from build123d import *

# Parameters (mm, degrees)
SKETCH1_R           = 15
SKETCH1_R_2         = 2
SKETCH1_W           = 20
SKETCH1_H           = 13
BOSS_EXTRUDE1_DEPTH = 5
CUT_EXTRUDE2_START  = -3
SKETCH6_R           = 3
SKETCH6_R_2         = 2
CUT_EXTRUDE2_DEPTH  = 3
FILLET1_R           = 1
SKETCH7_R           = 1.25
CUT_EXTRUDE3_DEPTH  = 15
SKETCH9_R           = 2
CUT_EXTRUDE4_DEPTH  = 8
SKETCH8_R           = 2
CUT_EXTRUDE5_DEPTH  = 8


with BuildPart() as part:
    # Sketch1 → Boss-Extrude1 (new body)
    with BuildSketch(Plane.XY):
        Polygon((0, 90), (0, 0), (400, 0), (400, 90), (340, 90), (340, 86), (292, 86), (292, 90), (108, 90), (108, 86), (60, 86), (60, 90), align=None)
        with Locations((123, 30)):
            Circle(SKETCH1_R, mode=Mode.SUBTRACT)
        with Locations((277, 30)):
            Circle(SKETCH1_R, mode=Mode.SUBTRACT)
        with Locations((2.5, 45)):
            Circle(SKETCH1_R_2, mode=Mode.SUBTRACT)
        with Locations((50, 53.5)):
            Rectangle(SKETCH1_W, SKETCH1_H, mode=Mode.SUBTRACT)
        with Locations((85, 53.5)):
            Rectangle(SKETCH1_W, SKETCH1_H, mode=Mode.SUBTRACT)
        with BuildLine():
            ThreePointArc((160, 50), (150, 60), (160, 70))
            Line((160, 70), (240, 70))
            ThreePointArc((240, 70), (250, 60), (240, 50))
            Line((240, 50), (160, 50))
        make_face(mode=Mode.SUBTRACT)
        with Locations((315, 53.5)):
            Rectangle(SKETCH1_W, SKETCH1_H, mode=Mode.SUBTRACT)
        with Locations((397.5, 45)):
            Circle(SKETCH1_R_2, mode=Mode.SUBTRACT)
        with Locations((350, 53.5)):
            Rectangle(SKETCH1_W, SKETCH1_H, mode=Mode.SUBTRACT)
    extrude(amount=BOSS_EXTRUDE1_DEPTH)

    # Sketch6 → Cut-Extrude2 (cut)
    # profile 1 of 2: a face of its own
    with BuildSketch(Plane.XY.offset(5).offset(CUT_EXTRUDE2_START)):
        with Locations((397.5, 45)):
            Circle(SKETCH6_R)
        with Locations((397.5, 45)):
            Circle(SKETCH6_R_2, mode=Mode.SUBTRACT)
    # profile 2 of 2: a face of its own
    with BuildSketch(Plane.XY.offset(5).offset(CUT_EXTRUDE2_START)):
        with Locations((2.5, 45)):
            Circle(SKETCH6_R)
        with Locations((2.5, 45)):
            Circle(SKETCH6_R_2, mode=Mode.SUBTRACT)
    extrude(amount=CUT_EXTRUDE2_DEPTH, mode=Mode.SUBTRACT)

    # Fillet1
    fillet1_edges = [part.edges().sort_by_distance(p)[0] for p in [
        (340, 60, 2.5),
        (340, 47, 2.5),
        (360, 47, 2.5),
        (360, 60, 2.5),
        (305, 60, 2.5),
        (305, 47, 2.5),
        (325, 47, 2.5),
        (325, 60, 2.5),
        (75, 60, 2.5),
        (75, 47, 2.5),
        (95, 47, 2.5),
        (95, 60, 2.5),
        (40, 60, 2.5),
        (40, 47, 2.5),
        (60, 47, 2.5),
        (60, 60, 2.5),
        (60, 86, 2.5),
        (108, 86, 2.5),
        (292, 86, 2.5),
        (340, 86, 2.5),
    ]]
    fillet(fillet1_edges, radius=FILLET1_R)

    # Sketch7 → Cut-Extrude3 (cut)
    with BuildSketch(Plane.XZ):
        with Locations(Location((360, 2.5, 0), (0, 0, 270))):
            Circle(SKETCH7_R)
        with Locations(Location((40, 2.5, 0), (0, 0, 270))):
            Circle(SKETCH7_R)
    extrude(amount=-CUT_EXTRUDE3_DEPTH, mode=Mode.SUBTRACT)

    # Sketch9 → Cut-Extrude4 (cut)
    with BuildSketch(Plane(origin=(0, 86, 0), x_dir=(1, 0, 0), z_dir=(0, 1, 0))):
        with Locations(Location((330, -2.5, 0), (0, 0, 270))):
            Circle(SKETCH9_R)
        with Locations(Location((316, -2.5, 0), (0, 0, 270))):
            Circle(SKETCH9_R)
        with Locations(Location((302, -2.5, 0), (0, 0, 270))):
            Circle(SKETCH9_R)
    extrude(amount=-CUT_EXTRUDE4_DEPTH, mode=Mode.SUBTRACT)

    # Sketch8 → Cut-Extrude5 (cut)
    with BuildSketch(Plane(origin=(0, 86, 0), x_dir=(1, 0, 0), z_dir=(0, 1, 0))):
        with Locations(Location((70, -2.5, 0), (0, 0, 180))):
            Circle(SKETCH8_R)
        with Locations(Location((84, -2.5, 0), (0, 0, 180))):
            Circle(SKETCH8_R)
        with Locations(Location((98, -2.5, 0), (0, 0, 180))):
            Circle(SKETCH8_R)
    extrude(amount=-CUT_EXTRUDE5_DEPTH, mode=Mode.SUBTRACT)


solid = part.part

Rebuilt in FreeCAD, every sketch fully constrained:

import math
import FreeCAD as App
import Part
import Sketcher
Q = App.Units.Quantity


def edges_at(feature, points):
    """Names of the edges that pass closest to the given points."""
    edges = feature.Shape.Edges
    near = lambda p: min(range(len(edges)), key=lambda i: edges[i].distToShape(Part.Vertex(*p))[0])
    return sorted({f"Edge{near(p) + 1}" for p in points})

doc = App.newDocument("Part")
body = doc.addObject("PartDesign::Body", "Body")

# Sketch on XY plane
sketch1 = doc.addObject("Sketcher::SketchObject", "Sketch")
body.addObject(sketch1)
sketch1.AttachmentSupport = (doc.XY_Plane, [""])
sketch1.MapMode = "FlatFace"
sketch1.addGeometry([
    Part.LineSegment(App.Vector(0, 90, 0), App.Vector(0, 0, 0)),  # 0
    Part.LineSegment(App.Vector(0, 0, 0), App.Vector(400, 0, 0)),  # 1
    Part.LineSegment(App.Vector(400, 0, 0), App.Vector(400, 90, 0)),  # 2
    Part.LineSegment(App.Vector(400, 90, 0), App.Vector(340, 90, 0)),  # 3
    Part.LineSegment(App.Vector(340, 90, 0), App.Vector(340, 86, 0)),  # 4
    Part.LineSegment(App.Vector(340, 86, 0), App.Vector(292, 86, 0)),  # 5
    Part.LineSegment(App.Vector(292, 86, 0), App.Vector(292, 90, 0)),  # 6
    Part.LineSegment(App.Vector(292, 90, 0), App.Vector(108, 90, 0)),  # 7
    Part.LineSegment(App.Vector(108, 90, 0), App.Vector(108, 86, 0)),  # 8
    Part.LineSegment(App.Vector(108, 86, 0), App.Vector(60, 86, 0)),  # 9
    Part.LineSegment(App.Vector(60, 86, 0), App.Vector(60, 90, 0)),  # 10
    Part.LineSegment(App.Vector(60, 90, 0), App.Vector(0, 90, 0)),  # 11
    Part.Circle(App.Vector(123, 30, 0), App.Vector(0, 0, 1), 15),  # 12
    Part.Circle(App.Vector(277, 30, 0), App.Vector(0, 0, 1), 15),  # 13
    Part.Circle(App.Vector(2.5, 45, 0), App.Vector(0, 0, 1), 2),  # 14
    Part.LineSegment(App.Vector(60, 47, 0), App.Vector(40, 47, 0)),  # 15
    Part.LineSegment(App.Vector(40, 47, 0), App.Vector(40, 60, 0)),  # 16
    Part.LineSegment(App.Vector(40, 60, 0), App.Vector(60, 60, 0)),  # 17
    Part.LineSegment(App.Vector(60, 60, 0), App.Vector(60, 47, 0)),  # 18
    Part.LineSegment(App.Vector(95, 47, 0), App.Vector(75, 47, 0)),  # 19
    Part.LineSegment(App.Vector(75, 47, 0), App.Vector(75, 60, 0)),  # 20
    Part.LineSegment(App.Vector(75, 60, 0), App.Vector(95, 60, 0)),  # 21
    Part.LineSegment(App.Vector(95, 60, 0), App.Vector(95, 47, 0)),  # 22
    Part.Circle(App.Vector(397.5, 45, 0), App.Vector(0, 0, 1), 2),  # 23
    Part.LineSegment(App.Vector(325, 47, 0), App.Vector(305, 47, 0)),  # 24
    Part.LineSegment(App.Vector(305, 47, 0), App.Vector(305, 60, 0)),  # 25
    Part.LineSegment(App.Vector(305, 60, 0), App.Vector(325, 60, 0)),  # 26
    Part.LineSegment(App.Vector(325, 60, 0), App.Vector(325, 47, 0)),  # 27
    Part.LineSegment(App.Vector(360, 47, 0), App.Vector(340, 47, 0)),  # 28
    Part.LineSegment(App.Vector(340, 47, 0), App.Vector(340, 60, 0)),  # 29
    Part.LineSegment(App.Vector(340, 60, 0), App.Vector(360, 60, 0)),  # 30
    Part.LineSegment(App.Vector(360, 60, 0), App.Vector(360, 47, 0)),  # 31
    Part.LineSegment(App.Vector(240, 50, 0), App.Vector(160, 50, 0)),  # 32
    Part.ArcOfCircle(Part.Circle(App.Vector(160, 60, 0), App.Vector(0, 0, 1), 10), math.radians(90), math.radians(270)),  # 33
    Part.LineSegment(App.Vector(160, 70, 0), App.Vector(240, 70, 0)),  # 34
    Part.ArcOfCircle(Part.Circle(App.Vector(240, 60, 0), App.Vector(0, 0, 1), 10), math.radians(-90), math.radians(90)),  # 35
], False)
sketch1.addConstraint([
    Sketcher.Constraint("Coincident", 0, 2, 1, 1),
    Sketcher.Constraint("Coincident", 1, 2, 2, 1),
    Sketcher.Constraint("Coincident", 2, 2, 3, 1),
    Sketcher.Constraint("Coincident", 3, 2, 4, 1),
    Sketcher.Constraint("Coincident", 4, 2, 5, 1),
    Sketcher.Constraint("Coincident", 5, 2, 6, 1),
    Sketcher.Constraint("Coincident", 6, 2, 7, 1),
    Sketcher.Constraint("Coincident", 7, 2, 8, 1),
    Sketcher.Constraint("Coincident", 8, 2, 9, 1),
    Sketcher.Constraint("Coincident", 9, 2, 10, 1),
    Sketcher.Constraint("Coincident", 10, 2, 11, 1),
    Sketcher.Constraint("Coincident", 11, 2, 0, 1),
    Sketcher.Constraint("Coincident", 15, 2, 16, 1),
    Sketcher.Constraint("Coincident", 16, 2, 17, 1),
    Sketcher.Constraint("Coincident", 17, 2, 18, 1),
    Sketcher.Constraint("Coincident", 18, 2, 15, 1),
    Sketcher.Constraint("Coincident", 19, 2, 20, 1),
    Sketcher.Constraint("Coincident", 20, 2, 21, 1),
    Sketcher.Constraint("Coincident", 21, 2, 22, 1),
    Sketcher.Constraint("Coincident", 22, 2, 19, 1),
    Sketcher.Constraint("Coincident", 24, 2, 25, 1),
    Sketcher.Constraint("Coincident", 25, 2, 26, 1),
    Sketcher.Constraint("Coincident", 26, 2, 27, 1),
    Sketcher.Constraint("Coincident", 27, 2, 24, 1),
    Sketcher.Constraint("Coincident", 28, 2, 29, 1),
    Sketcher.Constraint("Coincident", 29, 2, 30, 1),
    Sketcher.Constraint("Coincident", 30, 2, 31, 1),
    Sketcher.Constraint("Coincident", 31, 2, 28, 1),
    Sketcher.Constraint("Tangent", 32, 2, 33, 2),
    Sketcher.Constraint("Tangent", 33, 1, 34, 1),
    Sketcher.Constraint("Tangent", 34, 2, 35, 2),
    Sketcher.Constraint("Tangent", 35, 1, 32, 1),
    Sketcher.Constraint("Vertical", 0),
    Sketcher.Constraint("Horizontal", 1),
    Sketcher.Constraint("Vertical", 2),
    Sketcher.Constraint("Horizontal", 3),
    Sketcher.Constraint("Vertical", 4),
    Sketcher.Constraint("Horizontal", 5),
    Sketcher.Constraint("Vertical", 6),
    Sketcher.Constraint("Horizontal", 7),
    Sketcher.Constraint("Vertical", 8),
    Sketcher.Constraint("Horizontal", 9),
    Sketcher.Constraint("Vertical", 10),
    Sketcher.Constraint("Horizontal", 11),
    Sketcher.Constraint("Horizontal", 15),
    Sketcher.Constraint("Vertical", 16),
    Sketcher.Constraint("Horizontal", 17),
    Sketcher.Constraint("Vertical", 18),
    Sketcher.Constraint("Horizontal", 19),
    Sketcher.Constraint("Vertical", 20),
    Sketcher.Constraint("Horizontal", 21),
    Sketcher.Constraint("Vertical", 22),
    Sketcher.Constraint("Horizontal", 24),
    Sketcher.Constraint("Vertical", 25),
    Sketcher.Constraint("Horizontal", 26),
    Sketcher.Constraint("Vertical", 27),
    Sketcher.Constraint("Horizontal", 28),
    Sketcher.Constraint("Vertical", 29),
    Sketcher.Constraint("Horizontal", 30),
    Sketcher.Constraint("Vertical", 31),
    Sketcher.Constraint("Horizontal", 32),
    Sketcher.Constraint("Horizontal", 34),
    Sketcher.Constraint("Coincident", 0, 2, -1, 1),
    Sketcher.Constraint("Equal", 12, 13),
    Sketcher.Constraint("Equal", 14, 23),
    Sketcher.Constraint("Horizontal", 12, 3, 13, 3),
    Sketcher.Constraint("Horizontal", 14, 3, 23, 3),
    Sketcher.Constraint("Horizontal", 3, 2, 6, 2),
    Sketcher.Constraint("Horizontal", 5, 2, 8, 2),
    Sketcher.Constraint("Horizontal", 7, 2, 10, 2),
    Sketcher.Constraint("Horizontal", 35, 3, 16, 2),
    Sketcher.Constraint("Horizontal", 18, 2, 19, 2),
    Sketcher.Constraint("Horizontal", 17, 2, 20, 2),
    Sketcher.Constraint("Horizontal", 22, 2, 24, 2),
    Sketcher.Constraint("Horizontal", 21, 2, 25, 2),
    Sketcher.Constraint("Horizontal", 27, 2, 28, 2),
    Sketcher.Constraint("Horizontal", 26, 2, 29, 2),
    Sketcher.Constraint("Vertical", 10, 2, 17, 2),
    Sketcher.Constraint("Vertical", 4, 2, 28, 2),
    Sketcher.Constraint("Equal", 5, 9),
    Sketcher.Constraint("Equal", 3, 11),
    Sketcher.Constraint("Equal", 17, 19),
    Sketcher.Constraint("Equal", 21, 24),
    Sketcher.Constraint("Equal", 26, 28),
    Sketcher.Constraint("Diameter", 12, Q("30 mm")),
    Sketcher.Constraint("Diameter", 14, Q("4 mm")),
    Sketcher.Constraint("Radius", 33, Q("10 mm")),
    Sketcher.Constraint("DistanceX", 1, 1, 1, 2, Q("400 mm")),
    Sketcher.Constraint("DistanceX", 3, 2, 3, 1, Q("60 mm")),
    Sketcher.Constraint("DistanceX", 5, 2, 5, 1, Q("48 mm")),
    Sketcher.Constraint("DistanceX", 15, 2, 15, 1, Q("20 mm")),
    Sketcher.Constraint("DistanceX", 32, 2, 32, 1, Q("80 mm")),
    Sketcher.Constraint("DistanceY", 0, 2, 0, 1, Q("90 mm")),
    Sketcher.Constraint("DistanceY", 4, 2, 4, 1, Q("4 mm")),
    Sketcher.Constraint("DistanceY", 16, 1, 16, 2, Q("13 mm")),
    Sketcher.Constraint("DistanceX", -1, 1, 12, 3, Q("123 mm")),
    Sketcher.Constraint("DistanceY", -1, 1, 12, 3, Q("30 mm")),
    Sketcher.Constraint("DistanceX", -1, 1, 13, 3, Q("277 mm")),
    Sketcher.Constraint("DistanceY", -1, 1, 14, 3, Q("45 mm")),
    Sketcher.Constraint("DistanceX", -1, 1, 33, 3, Q("160 mm")),
    Sketcher.Constraint("DistanceY", -1, 1, 33, 3, Q("60 mm")),
    Sketcher.Constraint("DistanceX", -1, 1, 19, 2, Q("75 mm")),
    Sketcher.Constraint("DistanceX", -1, 1, 24, 2, Q("305 mm")),
    Sketcher.Constraint("DistanceX", 14, 3, 23, 3, Q("395 mm")),
    Sketcher.Constraint("DistanceX", -1, 1, 14, 3, Q("2.5 mm")),
])
pad1 = doc.addObject("PartDesign::Pad", "Pad")
body.addObject(pad1)
pad1.Profile = sketch1
pad1.Length = 5

# Sketch on XY plane
sketch2 = doc.addObject("Sketcher::SketchObject", "Sketch001")
body.addObject(sketch2)
sketch2.AttachmentSupport = (doc.XY_Plane, [""])
sketch2.MapMode = "FlatFace"
sketch2.AttachmentOffset = App.Placement(App.Vector(0, 0, 2), App.Rotation())
sketch2.addGeometry([
    Part.Circle(App.Vector(397.5, 45, 0), App.Vector(0, 0, 1), 3),
    Part.Circle(App.Vector(397.5, 45, 0), App.Vector(0, 0, 1), 2),
    Part.Circle(App.Vector(2.5, 45, 0), App.Vector(0, 0, 1), 3),
    Part.Circle(App.Vector(2.5, 45, 0), App.Vector(0, 0, 1), 2),
], False)
sketch2.addConstraint([
    Sketcher.Constraint("Coincident", 1, 3, 0, 3),
    Sketcher.Constraint("Coincident", 3, 3, 2, 3),
    Sketcher.Constraint("Equal", 0, 2),
    Sketcher.Constraint("Equal", 1, 3),
    Sketcher.Constraint("Horizontal", 1, 3, 2, 3),
    Sketcher.Constraint("Diameter", 0, Q("6 mm")),
    Sketcher.Constraint("Diameter", 1, Q("4 mm")),
    Sketcher.Constraint("DistanceY", -1, 1, 0, 3, Q("45 mm")),
    Sketcher.Constraint("DistanceX", 2, 3, 0, 3, Q("395 mm")),
    Sketcher.Constraint("DistanceX", -1, 1, 0, 3, Q("397.5 mm")),
])
pocket1 = doc.addObject("PartDesign::Pocket", "Pocket")
body.addObject(pocket1)
pocket1.Profile = sketch2
pocket1.Length = 3
pocket1.Reversed = True
doc.recompute()

fillet = doc.addObject("PartDesign::Fillet", "Fillet")
body.addObject(fillet)
fillet.Base = (pocket1, edges_at(pocket1, [
    (340, 60, 2.5),
    (340, 47, 2.5),
    (360, 47, 2.5),
    (360, 60, 2.5),
    (305, 60, 2.5),
    (305, 47, 2.5),
    (325, 47, 2.5),
    (325, 60, 2.5),
    (75, 60, 2.5),
    (75, 47, 2.5),
    (95, 47, 2.5),
    (95, 60, 2.5),
    (40, 60, 2.5),
    (40, 47, 2.5),
    (60, 47, 2.5),
    (60, 60, 2.5),
    (60, 86, 2.5),
    (108, 86, 2.5),
    (292, 86, 2.5),
    (340, 86, 2.5),
]))
fillet.Radius = 1

# Sketch on XZ plane
sketch3 = doc.addObject("Sketcher::SketchObject", "Sketch002")
body.addObject(sketch3)
sketch3.AttachmentSupport = (doc.XZ_Plane, [""])
sketch3.MapMode = "FlatFace"
sketch3.addGeometry([
    Part.Circle(App.Vector(360, 2.5, 0), App.Vector(0, 0, 1), 1.2),
    Part.Circle(App.Vector(40, 2.5, 0), App.Vector(0, 0, 1), 1.2),
], False)
sketch3.addConstraint([
    Sketcher.Constraint("Equal", 0, 1),
    Sketcher.Constraint("Horizontal", 0, 3, 1, 3),
    Sketcher.Constraint("Diameter", 0, Q("2.5 mm")),
    Sketcher.Constraint("DistanceX", -1, 1, 0, 3, Q("360 mm")),
    Sketcher.Constraint("DistanceX", -1, 1, 1, 3, Q("40 mm")),
    Sketcher.Constraint("DistanceY", -1, 1, 0, 3, Q("2.5 mm")),
])
pocket2 = doc.addObject("PartDesign::Pocket", "Pocket001")
body.addObject(pocket2)
pocket2.Profile = sketch3
pocket2.Length = 15

# Sketch on XZ plane
sketch4 = doc.addObject("Sketcher::SketchObject", "Sketch003")
body.addObject(sketch4)
sketch4.AttachmentSupport = (doc.XZ_Plane, [""])
sketch4.MapMode = "FlatFace"
sketch4.AttachmentOffset = App.Placement(App.Vector(0, 0, -86), App.Rotation())
sketch4.addGeometry([
    Part.Circle(App.Vector(330, 2.5, 0), App.Vector(0, 0, 1), 2),
    Part.Circle(App.Vector(316, 2.5, 0), App.Vector(0, 0, 1), 2),
    Part.Circle(App.Vector(302, 2.5, 0), App.Vector(0, 0, 1), 2),
], False)
sketch4.addConstraint([
    Sketcher.Constraint("Equal", 0, 1),
    Sketcher.Constraint("Equal", 1, 2),
    Sketcher.Constraint("Horizontal", 0, 3, 1, 3),
    Sketcher.Constraint("Horizontal", 1, 3, 2, 3),
    Sketcher.Constraint("Diameter", 0, Q("4 mm")),
    Sketcher.Constraint("DistanceX", -1, 1, 0, 3, Q("330 mm")),
    Sketcher.Constraint("DistanceX", -1, 1, 1, 3, Q("316 mm")),
    Sketcher.Constraint("DistanceX", -1, 1, 2, 3, Q("302 mm")),
    Sketcher.Constraint("DistanceY", -1, 1, 0, 3, Q("2.5 mm")),
])
pocket3 = doc.addObject("PartDesign::Pocket", "Pocket002")
body.addObject(pocket3)
pocket3.Profile = sketch4
pocket3.Length = 8
pocket3.Reversed = True

# Sketch on XZ plane
sketch5 = doc.addObject("Sketcher::SketchObject", "Sketch004")
body.addObject(sketch5)
sketch5.AttachmentSupport = (doc.XZ_Plane, [""])
sketch5.MapMode = "FlatFace"
sketch5.AttachmentOffset = App.Placement(App.Vector(0, 0, -86), App.Rotation())
sketch5.addGeometry([
    Part.Circle(App.Vector(70, 2.5, 0), App.Vector(0, 0, 1), 2),
    Part.Circle(App.Vector(84, 2.5, 0), App.Vector(0, 0, 1), 2),
    Part.Circle(App.Vector(98, 2.5, 0), App.Vector(0, 0, 1), 2),
], False)
sketch5.addConstraint([
    Sketcher.Constraint("Equal", 0, 1),
    Sketcher.Constraint("Equal", 1, 2),
    Sketcher.Constraint("Horizontal", 0, 3, 1, 3),
    Sketcher.Constraint("Horizontal", 1, 3, 2, 3),
    Sketcher.Constraint("Diameter", 0, Q("4 mm")),
    Sketcher.Constraint("DistanceX", -1, 1, 0, 3, Q("70 mm")),
    Sketcher.Constraint("DistanceX", -1, 1, 1, 3, Q("84 mm")),
    Sketcher.Constraint("DistanceX", -1, 1, 2, 3, Q("98 mm")),
    Sketcher.Constraint("DistanceY", -1, 1, 0, 3, Q("2.5 mm")),
])
pocket4 = doc.addObject("PartDesign::Pocket", "Pocket003")
body.addObject(pocket4)
pocket4.Profile = sketch5
pocket4.Length = 8
pocket4.Reversed = True

doc.recompute()
